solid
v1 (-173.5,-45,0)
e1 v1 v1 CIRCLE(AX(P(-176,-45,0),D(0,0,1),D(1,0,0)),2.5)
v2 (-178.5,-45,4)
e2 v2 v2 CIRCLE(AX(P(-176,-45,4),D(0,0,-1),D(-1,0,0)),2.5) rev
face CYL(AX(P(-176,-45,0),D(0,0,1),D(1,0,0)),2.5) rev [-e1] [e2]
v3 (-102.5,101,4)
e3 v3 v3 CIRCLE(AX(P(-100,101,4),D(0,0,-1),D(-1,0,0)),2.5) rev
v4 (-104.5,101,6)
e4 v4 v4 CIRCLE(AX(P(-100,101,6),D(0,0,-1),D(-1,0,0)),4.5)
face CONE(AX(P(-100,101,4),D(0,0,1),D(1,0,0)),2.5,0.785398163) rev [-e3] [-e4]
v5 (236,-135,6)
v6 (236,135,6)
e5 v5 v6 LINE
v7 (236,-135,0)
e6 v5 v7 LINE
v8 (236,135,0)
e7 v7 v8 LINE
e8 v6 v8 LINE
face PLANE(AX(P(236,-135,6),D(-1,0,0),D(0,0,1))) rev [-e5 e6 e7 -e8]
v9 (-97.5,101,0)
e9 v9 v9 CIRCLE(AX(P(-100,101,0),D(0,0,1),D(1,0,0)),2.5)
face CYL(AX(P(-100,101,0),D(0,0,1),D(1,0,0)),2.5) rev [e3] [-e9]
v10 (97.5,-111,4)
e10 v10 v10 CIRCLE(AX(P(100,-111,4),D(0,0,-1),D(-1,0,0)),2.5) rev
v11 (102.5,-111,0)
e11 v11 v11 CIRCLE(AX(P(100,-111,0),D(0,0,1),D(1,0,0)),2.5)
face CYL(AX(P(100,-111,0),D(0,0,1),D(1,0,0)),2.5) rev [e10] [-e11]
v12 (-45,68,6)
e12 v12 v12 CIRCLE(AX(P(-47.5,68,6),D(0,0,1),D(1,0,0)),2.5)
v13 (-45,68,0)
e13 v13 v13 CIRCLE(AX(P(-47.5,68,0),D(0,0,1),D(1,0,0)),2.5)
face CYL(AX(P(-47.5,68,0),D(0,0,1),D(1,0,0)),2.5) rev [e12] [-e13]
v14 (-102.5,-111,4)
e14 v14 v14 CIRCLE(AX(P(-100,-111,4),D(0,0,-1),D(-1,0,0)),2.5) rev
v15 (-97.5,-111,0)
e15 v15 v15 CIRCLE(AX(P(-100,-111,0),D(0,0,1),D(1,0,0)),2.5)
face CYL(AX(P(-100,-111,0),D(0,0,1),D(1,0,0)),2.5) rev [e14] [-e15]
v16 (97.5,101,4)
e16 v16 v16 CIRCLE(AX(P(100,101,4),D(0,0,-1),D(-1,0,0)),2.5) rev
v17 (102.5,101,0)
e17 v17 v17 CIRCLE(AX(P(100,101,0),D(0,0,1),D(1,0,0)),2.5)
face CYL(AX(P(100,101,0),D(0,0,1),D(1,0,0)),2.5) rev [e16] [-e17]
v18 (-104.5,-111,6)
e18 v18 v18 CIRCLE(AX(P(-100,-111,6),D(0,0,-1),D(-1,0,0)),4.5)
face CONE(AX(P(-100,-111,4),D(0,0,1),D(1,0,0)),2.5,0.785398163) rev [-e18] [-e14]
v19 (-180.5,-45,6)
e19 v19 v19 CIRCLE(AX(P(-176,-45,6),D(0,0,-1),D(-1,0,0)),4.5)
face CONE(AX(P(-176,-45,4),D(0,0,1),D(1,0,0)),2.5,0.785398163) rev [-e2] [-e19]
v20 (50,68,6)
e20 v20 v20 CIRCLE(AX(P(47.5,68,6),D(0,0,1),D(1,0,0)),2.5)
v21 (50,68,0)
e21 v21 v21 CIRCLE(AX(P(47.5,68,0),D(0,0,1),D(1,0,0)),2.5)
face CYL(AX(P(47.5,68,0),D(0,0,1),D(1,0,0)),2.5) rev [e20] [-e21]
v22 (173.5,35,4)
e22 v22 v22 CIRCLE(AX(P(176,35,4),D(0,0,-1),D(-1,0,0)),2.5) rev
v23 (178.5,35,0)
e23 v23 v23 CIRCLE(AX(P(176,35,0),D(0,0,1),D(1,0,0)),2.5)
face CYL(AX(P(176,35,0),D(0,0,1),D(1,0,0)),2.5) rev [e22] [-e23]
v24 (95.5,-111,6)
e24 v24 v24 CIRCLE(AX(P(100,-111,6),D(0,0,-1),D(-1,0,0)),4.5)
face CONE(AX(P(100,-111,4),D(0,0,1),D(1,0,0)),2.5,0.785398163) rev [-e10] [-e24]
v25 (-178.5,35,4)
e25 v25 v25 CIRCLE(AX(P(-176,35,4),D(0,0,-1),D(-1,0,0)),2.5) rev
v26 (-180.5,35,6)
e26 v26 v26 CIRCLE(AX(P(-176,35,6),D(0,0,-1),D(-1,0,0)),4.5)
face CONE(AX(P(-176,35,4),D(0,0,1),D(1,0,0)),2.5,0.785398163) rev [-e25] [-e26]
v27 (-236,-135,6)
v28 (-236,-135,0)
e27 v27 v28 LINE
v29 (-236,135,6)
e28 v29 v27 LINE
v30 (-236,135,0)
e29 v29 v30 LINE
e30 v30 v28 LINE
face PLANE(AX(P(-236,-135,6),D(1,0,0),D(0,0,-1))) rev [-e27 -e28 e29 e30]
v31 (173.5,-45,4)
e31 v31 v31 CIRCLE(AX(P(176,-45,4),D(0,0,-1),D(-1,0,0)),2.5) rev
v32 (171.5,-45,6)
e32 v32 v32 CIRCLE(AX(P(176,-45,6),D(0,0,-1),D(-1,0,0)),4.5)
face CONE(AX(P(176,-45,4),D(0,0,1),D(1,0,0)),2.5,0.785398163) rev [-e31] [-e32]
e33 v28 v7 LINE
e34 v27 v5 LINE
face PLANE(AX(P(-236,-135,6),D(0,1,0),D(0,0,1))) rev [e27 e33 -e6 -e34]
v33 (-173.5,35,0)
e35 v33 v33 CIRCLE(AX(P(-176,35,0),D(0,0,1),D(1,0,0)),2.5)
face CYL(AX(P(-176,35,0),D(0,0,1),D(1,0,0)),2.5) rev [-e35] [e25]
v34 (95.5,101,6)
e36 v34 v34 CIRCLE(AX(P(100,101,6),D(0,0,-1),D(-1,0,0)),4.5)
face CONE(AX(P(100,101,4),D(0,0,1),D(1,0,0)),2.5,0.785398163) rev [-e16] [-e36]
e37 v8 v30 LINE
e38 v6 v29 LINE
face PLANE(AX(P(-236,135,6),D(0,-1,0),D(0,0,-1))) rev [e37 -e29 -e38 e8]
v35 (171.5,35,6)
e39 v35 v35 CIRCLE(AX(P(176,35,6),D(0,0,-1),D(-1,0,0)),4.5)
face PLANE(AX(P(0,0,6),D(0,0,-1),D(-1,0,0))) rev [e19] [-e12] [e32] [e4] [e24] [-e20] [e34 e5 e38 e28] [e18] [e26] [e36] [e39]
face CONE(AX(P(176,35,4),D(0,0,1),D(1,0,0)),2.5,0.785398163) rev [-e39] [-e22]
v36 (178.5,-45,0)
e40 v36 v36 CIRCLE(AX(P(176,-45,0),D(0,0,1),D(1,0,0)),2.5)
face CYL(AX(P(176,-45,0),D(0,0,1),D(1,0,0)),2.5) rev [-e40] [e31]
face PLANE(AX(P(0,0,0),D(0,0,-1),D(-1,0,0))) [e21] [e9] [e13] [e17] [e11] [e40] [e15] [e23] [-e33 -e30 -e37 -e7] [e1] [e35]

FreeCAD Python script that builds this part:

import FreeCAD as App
import Part
import Sketcher


def edges_at(feature, points):
    """Names of the edges that pass closest to the given points."""
    edges = feature.Shape.Edges
    near = lambda p: min(range(len(edges)), key=lambda i: edges[i].distToShape(Part.Vertex(*p))[0])
    return sorted({f"Edge{near(p) + 1}" for p in points})

doc = App.newDocument("Part")
body = doc.addObject("PartDesign::Body", "Body")

sketch1 = body.newObject("Sketcher::SketchObject", "Sketch")
sketch1.AttachmentSupport = (doc.getObject("XY_Plane"), [""])
sketch1.MapMode = "FlatFace"
sketch1.addGeometry([
    Part.LineSegment(App.Vector(-236, 135, 0), App.Vector(-236, -135, 0)),
    Part.LineSegment(App.Vector(-236, -135, 0), App.Vector(236, -135, 0)),
    Part.LineSegment(App.Vector(236, -135, 0), App.Vector(236, 135, 0)),
    Part.LineSegment(App.Vector(236, 135, 0), App.Vector(-236, 135, 0)),
], False)
sketch1.addConstraint([
    Sketcher.Constraint("Coincident", 0, 2, 1, 1),
    Sketcher.Constraint("Coincident", 1, 2, 2, 1),
    Sketcher.Constraint("Coincident", 2, 2, 3, 1),
    Sketcher.Constraint("Coincident", 3, 2, 0, 1),
    Sketcher.Constraint("Vertical", 0),
    Sketcher.Constraint("Horizontal", 1),
    Sketcher.Constraint("Vertical", 2),
    Sketcher.Constraint("Horizontal", 3),
    Sketcher.Constraint("Symmetric", 0, 2, 2, 2, -1, 1),
    Sketcher.Constraint("DistanceX", 1, 1, 1, 2, 472.0),
    Sketcher.Constraint("DistanceY", 0, 2, 0, 1, 270.0),
])
pad1 = body.newObject("PartDesign::Pad", "Pad")
pad1.Profile = sketch1
pad1.Length = 6

sketch2 = body.newObject("Sketcher::SketchObject", "Sketch001")
sketch2.AttachmentSupport = (doc.getObject("XY_Plane"), [""])
sketch2.MapMode = "FlatFace"
sketch2.AttachmentOffset = App.Placement(App.Vector(0, 0, 6), App.Rotation())
sketch2.addGeometry([
    Part.Circle(App.Vector(-100, 101, 0), App.Vector(0, 0, 1), 2.5),
    Part.Circle(App.Vector(100, 101, 0), App.Vector(0, 0, 1), 2.5),
    Part.Circle(App.Vector(176, 35, 0), App.Vector(0, 0, 1), 2.5),
    Part.Circle(App.Vector(176, -45, 0), App.Vector(0, 0, 1), 2.5),
    Part.Circle(App.Vector(100, -111, 0), App.Vector(0, 0, 1), 2.5),
    Part.Circle(App.Vector(-100, -111, 0), App.Vector(0, 0, 1), 2.5),
    Part.Circle(App.Vector(-176, -45, 0), App.Vector(0, 0, 1), 2.5),
    Part.Circle(App.Vector(-176, 35, 0), App.Vector(0, 0, 1), 2.5),
], False)
sketch2.addConstraint([
    Sketcher.Constraint("Equal", 0, 1),
    Sketcher.Constraint("Equal", 1, 2),
    Sketcher.Constraint("Equal", 2, 3),
    Sketcher.Constraint("Equal", 3, 4),
    Sketcher.Constraint("Equal", 4, 5),
    Sketcher.Constraint("Equal", 5, 6),
    Sketcher.Constraint("Equal", 6, 7),
    Sketcher.Constraint("Symmetric", 0, 3, 1, 3, -2),
    Sketcher.Constraint("Symmetric", 4, 3, 5, 3, -2),
    Sketcher.Constraint("Symmetric", 3, 3, 6, 3, -2),
    Sketcher.Constraint("Symmetric", 2, 3, 7, 3, -2),
    Sketcher.Constraint("Vertical", 2, 3, 3, 3),
    Sketcher.Constraint("Vertical", 1, 3, 4, 3),
    Sketcher.Constraint("Diameter", 0, 5.0),
    Sketcher.Constraint("DistanceX", 0, 3, -1, 1, 100.0),
    Sketcher.Constraint("DistanceY", -1, 1, 0, 3, 101.0),
    Sketcher.Constraint("DistanceX", -1, 1, 2, 3, 176.0),
    Sketcher.Constraint("DistanceY", -1, 1, 2, 3, 35.0),
    Sketcher.Constraint("DistanceY", 3, 3, -1, 1, 45.0),
    Sketcher.Constraint("DistanceY", 4, 3, -1, 1, 111.0),
])
pocket1 = body.newObject("PartDesign::Pocket", "Pocket")
pocket1.Profile = sketch2
pocket1.Type = "ThroughAll"
doc.recompute()

chamfer = body.newObject("PartDesign::Chamfer", "Chamfer")
chamfer.Base = (pocket1, edges_at(pocket1, [
    (-178.5, 35, 6),
    (-178.5, -45, 6),
    (-102.5, -111, 6),
    (97.5, -111, 6),
    (173.5, -45, 6),
    (173.5, 35, 6),
    (97.5, 101, 6),
    (-102.5, 101, 6),
]))
chamfer.Size = 2

sketch3 = body.newObject("Sketcher::SketchObject", "Sketch002")
sketch3.AttachmentSupport = (doc.getObject("XY_Plane"), [""])
sketch3.MapMode = "FlatFace"
sketch3.AttachmentOffset = App.Placement(App.Vector(0, 0, 6), App.Rotation())
sketch3.addGeometry([
    Part.Circle(App.Vector(-47.5, 68, 0), App.Vector(0, 0, 1), 2.5),
    Part.Circle(App.Vector(47.5, 68, 0), App.Vector(0, 0, 1), 2.5),
], False)
sketch3.addConstraint([
    Sketcher.Constraint("Equal", 0, 1),
    Sketcher.Constraint("Symmetric", 0, 3, 1, 3, -2),
    Sketcher.Constraint("Diameter", 0, 5.0),
    Sketcher.Constraint("DistanceY", -1, 1, 0, 3, 68.0),
    Sketcher.Constraint("DistanceX", 0, 3, 1, 3, 95.0),
])
pocket2 = body.newObject("PartDesign::Pocket", "Pocket001")
pocket2.Profile = sketch3
pocket2.Type = "ThroughAll"

doc.recompute()
